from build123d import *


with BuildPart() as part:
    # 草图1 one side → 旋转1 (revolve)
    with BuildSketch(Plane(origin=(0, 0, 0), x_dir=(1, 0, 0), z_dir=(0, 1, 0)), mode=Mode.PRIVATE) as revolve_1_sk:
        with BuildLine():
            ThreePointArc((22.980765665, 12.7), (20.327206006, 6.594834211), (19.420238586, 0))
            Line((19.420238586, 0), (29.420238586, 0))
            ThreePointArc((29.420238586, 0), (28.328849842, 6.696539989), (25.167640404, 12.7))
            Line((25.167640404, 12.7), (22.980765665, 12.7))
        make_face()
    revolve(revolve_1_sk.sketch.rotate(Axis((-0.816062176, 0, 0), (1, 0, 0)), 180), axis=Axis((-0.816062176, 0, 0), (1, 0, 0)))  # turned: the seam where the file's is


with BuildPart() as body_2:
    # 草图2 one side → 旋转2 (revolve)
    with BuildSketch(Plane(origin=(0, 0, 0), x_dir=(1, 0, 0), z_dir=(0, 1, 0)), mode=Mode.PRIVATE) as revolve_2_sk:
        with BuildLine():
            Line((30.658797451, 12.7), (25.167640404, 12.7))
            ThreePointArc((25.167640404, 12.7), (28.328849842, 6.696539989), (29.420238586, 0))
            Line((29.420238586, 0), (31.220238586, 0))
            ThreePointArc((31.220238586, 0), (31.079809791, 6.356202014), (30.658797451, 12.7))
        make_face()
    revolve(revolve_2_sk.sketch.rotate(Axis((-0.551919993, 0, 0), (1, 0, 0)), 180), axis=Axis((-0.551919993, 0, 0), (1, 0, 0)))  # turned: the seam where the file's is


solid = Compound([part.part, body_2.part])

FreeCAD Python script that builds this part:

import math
import FreeCAD as App
import Part
import Sketcher

doc = App.newDocument("Part")
params = doc.addObject("Spreadsheet::Sheet", "Params")
for row, (alias, value) in enumerate([
    ("sketch1_width", "10 mm"),
    ("sketch1_radius", "24.43 mm"),
    ("sketch1_radius2", "21.09 mm"),
    ("revolution_angle", "360 deg"),
    ("sketch2_radius", "21.09 mm"),
    ("sketch2_radius2", "143.92 mm"),
    ("sketch2_width", "1.8 mm"),
    ("revolution2_angle", "360 deg"),
], start=1):
    params.set(f"A{row}", alias)
    params.set(f"B{row}", "=" + value)
    params.setAlias(f"B{row}", alias)

body = doc.addObject("PartDesign::Body", "Body")

# Sketch on XZ plane
sketch1 = body.newObject("Sketcher::SketchObject", "Sketch")
sketch1.AttachmentSupport = (doc.getObject("XZ_Plane"), [""])
sketch1.MapMode = "FlatFace"
sketch1.addGeometry([
    Part.ArcOfCircle(Part.Circle(App.Vector(43.9, 0, 0), App.Vector(0, 0, 1), 24.4), math.radians(180), math.radians(211)),
    Part.LineSegment(App.Vector(19.4, 0, 0), App.Vector(29.4, 0, 0)),
    Part.ArcOfCircle(Part.Circle(App.Vector(8.3, 0, 0), App.Vector(0, 0, 1), 21.1), math.radians(-37), math.radians(0)),
    Part.LineSegment(App.Vector(25.2, -12.7, 0), App.Vector(23, -12.7, 0)),
], False)
sketch1.addConstraint([
    Sketcher.Constraint("Coincident", 0, 1, 1, 1),
    Sketcher.Constraint("Coincident", 1, 2, 2, 2),
    Sketcher.Constraint("Coincident", 2, 1, 3, 1),
    Sketcher.Constraint("Coincident", 3, 2, 0, 2),
    Sketcher.Constraint("Horizontal", 1),
    Sketcher.Constraint("Horizontal", 3),
    Sketcher.Constraint("PointOnObject", 0, 3, -1),
    Sketcher.Constraint("PointOnObject", 2, 3, -1),
    Sketcher.Constraint("PointOnObject", 0, 1, -1),
    Sketcher.Constraint("DistanceX", 1, 1, 1, 2, 10.0),
    Sketcher.Constraint("Radius", 0, 24.43),
    Sketcher.Constraint("Radius", 2, 21.09),
    Sketcher.Constraint("DistanceY", 2, 1, -1, 1, 12.7),
    Sketcher.Constraint("DistanceX", -1, 1, 0, 3, 43.850239),
])
sketch1.setExpression("Constraints[9]", "Params.sketch1_width")
sketch1.setExpression("Constraints[10]", "Params.sketch1_radius")
sketch1.setExpression("Constraints[11]", "Params.sketch1_radius2")
revolution = body.newObject("PartDesign::Revolution", "Revolution")
revolution.Profile = sketch1
revolution.ReferenceAxis = (sketch1, ["H_Axis"])
revolution.setExpression("Angle", "Params.revolution_angle")
body2 = doc.addObject("PartDesign::Body", "Body001")

# Sketch on XZ plane
sketch2 = body2.newObject("Sketcher::SketchObject", "Sketch001")
sketch2.AttachmentSupport = (doc.getObject("XZ_Plane001"), [""])
sketch2.MapMode = "FlatFace"
sketch2.addGeometry([
    Part.LineSegment(App.Vector(30.7, -12.7, 0), App.Vector(25.2, -12.7, 0)),
    Part.ArcOfCircle(Part.Circle(App.Vector(8.3, 0, 0), App.Vector(0, 0, 1), 21.1), math.radians(-37), math.radians(0)),
    Part.LineSegment(App.Vector(29.4, 0, 0), App.Vector(31.2, 0, 0)),
    Part.ArcOfCircle(Part.Circle(App.Vector(-112.7, 0, 0), App.Vector(0, 0, 1), 143.9), math.radians(-5.06), math.radians(0)),
], False)
sketch2.addConstraint([
    Sketcher.Constraint("Coincident", 0, 2, 1, 1),
    Sketcher.Constraint("Coincident", 1, 2, 2, 1),
    Sketcher.Constraint("Coincident", 2, 2, 3, 2),
    Sketcher.Constraint("Coincident", 3, 1, 0, 1),
    Sketcher.Constraint("Horizontal", 0),
    Sketcher.Constraint("Horizontal", 2),
    Sketcher.Constraint("PointOnObject", 1, 3, -1),
    Sketcher.Constraint("PointOnObject", 3, 3, -1),
    Sketcher.Constraint("PointOnObject", 1, 2, -1),
    Sketcher.Constraint("Radius", 1, 21.09),
    Sketcher.Constraint("Radius", 3, 143.92),
    Sketcher.Constraint("DistanceX", 2, 1, 2, 2, 1.8),
    Sketcher.Constraint("DistanceY", 0, 2, -1, 1, 12.7),
    Sketcher.Constraint("DistanceX", -1, 1, 1, 3, 8.330239),
])
sketch2.setExpression("Constraints[9]", "Params.sketch2_radius")
sketch2.setExpression("Constraints[10]", "Params.sketch2_radius2")
sketch2.setExpression("Constraints[11]", "Params.sketch2_width")
revolution2 = body2.newObject("PartDesign::Revolution", "Revolution001")
revolution2.Profile = sketch2
revolution2.ReferenceAxis = (sketch2, ["H_Axis"])
revolution2.setExpression("Angle", "Params.revolution2_angle")

doc.recompute()
